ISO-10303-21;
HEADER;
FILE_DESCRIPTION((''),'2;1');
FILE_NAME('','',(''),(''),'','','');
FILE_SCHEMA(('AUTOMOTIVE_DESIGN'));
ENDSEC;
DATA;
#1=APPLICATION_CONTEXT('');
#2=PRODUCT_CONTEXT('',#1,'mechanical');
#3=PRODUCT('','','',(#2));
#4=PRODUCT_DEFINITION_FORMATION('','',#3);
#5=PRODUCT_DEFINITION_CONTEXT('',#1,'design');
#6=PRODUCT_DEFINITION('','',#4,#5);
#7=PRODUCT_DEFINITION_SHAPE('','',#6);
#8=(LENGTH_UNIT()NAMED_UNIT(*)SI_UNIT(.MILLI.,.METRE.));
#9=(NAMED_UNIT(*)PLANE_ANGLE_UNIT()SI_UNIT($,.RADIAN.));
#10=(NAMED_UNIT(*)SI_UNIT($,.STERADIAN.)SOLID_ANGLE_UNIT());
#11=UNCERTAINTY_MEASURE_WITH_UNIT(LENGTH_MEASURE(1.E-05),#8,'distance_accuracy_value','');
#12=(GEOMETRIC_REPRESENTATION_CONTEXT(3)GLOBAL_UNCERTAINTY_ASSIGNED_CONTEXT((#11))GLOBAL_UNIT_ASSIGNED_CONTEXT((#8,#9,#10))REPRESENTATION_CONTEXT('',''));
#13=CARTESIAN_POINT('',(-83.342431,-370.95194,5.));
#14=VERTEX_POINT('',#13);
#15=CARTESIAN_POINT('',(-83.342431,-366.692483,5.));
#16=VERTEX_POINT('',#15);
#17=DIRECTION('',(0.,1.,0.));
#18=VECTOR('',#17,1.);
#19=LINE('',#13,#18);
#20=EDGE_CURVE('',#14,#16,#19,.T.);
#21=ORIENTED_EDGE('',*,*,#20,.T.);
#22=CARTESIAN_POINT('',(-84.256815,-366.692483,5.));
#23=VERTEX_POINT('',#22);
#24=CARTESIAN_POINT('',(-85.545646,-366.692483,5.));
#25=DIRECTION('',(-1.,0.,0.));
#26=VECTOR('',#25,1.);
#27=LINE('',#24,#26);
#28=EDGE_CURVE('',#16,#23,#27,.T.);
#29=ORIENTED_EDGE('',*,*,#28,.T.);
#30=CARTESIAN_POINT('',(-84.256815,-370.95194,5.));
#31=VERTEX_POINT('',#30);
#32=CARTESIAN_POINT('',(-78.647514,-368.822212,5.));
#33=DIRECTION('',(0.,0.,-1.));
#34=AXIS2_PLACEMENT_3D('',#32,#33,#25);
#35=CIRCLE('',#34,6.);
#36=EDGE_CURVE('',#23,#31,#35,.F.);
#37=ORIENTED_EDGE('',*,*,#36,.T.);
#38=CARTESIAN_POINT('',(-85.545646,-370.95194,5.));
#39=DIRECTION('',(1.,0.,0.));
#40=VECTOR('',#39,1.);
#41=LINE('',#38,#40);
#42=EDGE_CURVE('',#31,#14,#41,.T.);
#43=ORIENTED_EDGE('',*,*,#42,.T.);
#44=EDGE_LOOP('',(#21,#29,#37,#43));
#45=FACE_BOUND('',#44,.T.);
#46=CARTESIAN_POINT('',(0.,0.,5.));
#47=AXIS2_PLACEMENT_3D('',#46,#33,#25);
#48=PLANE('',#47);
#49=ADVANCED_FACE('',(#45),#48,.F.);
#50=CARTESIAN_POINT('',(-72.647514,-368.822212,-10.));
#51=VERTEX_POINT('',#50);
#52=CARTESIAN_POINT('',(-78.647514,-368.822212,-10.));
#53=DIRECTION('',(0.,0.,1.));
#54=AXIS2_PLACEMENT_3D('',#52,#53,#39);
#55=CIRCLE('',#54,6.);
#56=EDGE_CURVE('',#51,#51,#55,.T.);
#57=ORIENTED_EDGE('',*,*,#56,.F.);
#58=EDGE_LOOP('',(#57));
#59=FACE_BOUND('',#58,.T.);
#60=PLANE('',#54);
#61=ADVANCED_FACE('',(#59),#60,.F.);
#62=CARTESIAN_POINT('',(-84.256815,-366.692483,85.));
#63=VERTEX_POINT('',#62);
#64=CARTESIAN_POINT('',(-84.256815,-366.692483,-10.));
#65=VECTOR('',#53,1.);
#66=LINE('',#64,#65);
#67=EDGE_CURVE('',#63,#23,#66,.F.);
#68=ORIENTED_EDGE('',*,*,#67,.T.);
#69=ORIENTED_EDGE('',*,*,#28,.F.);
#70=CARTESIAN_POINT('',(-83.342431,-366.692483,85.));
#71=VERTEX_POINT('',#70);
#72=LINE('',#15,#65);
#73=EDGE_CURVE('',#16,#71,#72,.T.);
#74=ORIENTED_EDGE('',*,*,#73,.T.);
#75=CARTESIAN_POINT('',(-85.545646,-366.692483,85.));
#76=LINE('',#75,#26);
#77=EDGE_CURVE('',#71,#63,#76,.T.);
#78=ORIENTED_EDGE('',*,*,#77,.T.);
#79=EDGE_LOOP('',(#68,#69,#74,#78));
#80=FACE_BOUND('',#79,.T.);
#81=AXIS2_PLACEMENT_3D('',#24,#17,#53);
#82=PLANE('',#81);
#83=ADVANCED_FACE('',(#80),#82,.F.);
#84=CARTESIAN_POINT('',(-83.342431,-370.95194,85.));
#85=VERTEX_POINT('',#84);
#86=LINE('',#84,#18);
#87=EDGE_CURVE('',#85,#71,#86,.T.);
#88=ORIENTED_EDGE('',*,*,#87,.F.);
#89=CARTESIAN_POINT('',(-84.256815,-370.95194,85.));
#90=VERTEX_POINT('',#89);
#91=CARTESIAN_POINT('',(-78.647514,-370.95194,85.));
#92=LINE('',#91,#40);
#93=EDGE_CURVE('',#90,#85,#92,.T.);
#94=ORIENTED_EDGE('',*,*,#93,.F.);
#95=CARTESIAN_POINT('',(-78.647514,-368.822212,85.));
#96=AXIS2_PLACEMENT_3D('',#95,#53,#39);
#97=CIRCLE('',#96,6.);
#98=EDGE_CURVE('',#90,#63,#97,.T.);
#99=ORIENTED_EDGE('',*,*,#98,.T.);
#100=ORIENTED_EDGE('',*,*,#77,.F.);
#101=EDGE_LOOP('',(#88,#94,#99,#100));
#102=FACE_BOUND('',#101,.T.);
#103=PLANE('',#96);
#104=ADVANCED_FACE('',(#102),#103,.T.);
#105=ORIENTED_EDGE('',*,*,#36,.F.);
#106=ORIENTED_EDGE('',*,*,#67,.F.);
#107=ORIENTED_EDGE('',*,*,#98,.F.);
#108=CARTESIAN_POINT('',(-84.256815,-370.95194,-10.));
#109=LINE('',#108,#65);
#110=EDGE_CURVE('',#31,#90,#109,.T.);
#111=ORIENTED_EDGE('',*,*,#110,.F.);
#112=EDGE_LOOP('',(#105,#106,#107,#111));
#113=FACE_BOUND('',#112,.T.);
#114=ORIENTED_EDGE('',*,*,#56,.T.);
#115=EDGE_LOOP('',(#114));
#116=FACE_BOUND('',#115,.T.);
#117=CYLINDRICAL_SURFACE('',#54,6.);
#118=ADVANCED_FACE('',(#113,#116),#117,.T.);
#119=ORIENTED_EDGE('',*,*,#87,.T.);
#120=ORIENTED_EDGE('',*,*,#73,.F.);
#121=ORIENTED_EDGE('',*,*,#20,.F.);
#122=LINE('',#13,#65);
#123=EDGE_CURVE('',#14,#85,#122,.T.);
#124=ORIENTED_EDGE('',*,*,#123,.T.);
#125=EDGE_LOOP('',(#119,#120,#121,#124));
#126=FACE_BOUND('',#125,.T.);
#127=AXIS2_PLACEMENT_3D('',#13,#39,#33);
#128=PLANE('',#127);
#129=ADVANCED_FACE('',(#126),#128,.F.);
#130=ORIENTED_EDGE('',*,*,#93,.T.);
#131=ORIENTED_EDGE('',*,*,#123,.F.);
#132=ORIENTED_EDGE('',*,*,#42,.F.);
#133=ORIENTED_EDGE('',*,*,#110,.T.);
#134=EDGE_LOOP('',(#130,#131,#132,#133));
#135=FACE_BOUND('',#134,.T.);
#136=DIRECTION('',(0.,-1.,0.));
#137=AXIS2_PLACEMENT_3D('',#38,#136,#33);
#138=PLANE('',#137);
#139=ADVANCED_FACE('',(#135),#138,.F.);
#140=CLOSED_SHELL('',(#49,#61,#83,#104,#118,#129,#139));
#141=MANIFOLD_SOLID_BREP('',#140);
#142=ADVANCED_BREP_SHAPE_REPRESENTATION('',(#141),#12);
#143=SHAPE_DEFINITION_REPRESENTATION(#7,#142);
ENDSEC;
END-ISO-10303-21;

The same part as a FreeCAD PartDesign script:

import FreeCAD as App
import Part
import Sketcher


def add_polygon(sketch, points):
    """Adds a closed chain of lines whose ends are joined by coincident constraints."""
    first, n = sketch.GeometryCount, len(points)
    for a, b in zip(points, points[1:] + points[:1]):
        sketch.addGeometry(Part.LineSegment(App.Vector(*a, 0), App.Vector(*b, 0)), False)
    for i in range(n):
        sketch.addConstraint(Sketcher.Constraint("Coincident", first + i, 2, first + (i + 1) % n, 1))

doc = App.newDocument("Part")
body = doc.addObject("PartDesign::Body", "Body")

# Sketch on XY plane
sketch1 = body.newObject("Sketcher::SketchObject", "Sketch")
sketch1.AttachmentSupport = (doc.getObject("XY_Plane"), [""])
sketch1.MapMode = "FlatFace"
sketch1.addGeometry(Part.Circle(App.Vector(-78.647514, -368.822212, 0), App.Vector(0, 0, 1), 6), False)
sketch1.addConstraint([
    Sketcher.Constraint("Diameter", 0, 12.0),
    Sketcher.Constraint("DistanceY", 0, 3, -1, 1, 368.822212),
    Sketcher.Constraint("DistanceX", 0, 3, -1, 1, 78.647514),
])
pad1 = body.newObject("PartDesign::Pad", "Pad")
pad1.Profile = sketch1
pad1.Type = "TwoLengths"
pad1.Length = 85
pad1.Length2 = 10

# Sketch on XY plane
sketch2 = body.newObject("Sketcher::SketchObject", "Sketch001")
sketch2.AttachmentSupport = (doc.getObject("XY_Plane"), [""])
sketch2.MapMode = "FlatFace"
sketch2.AttachmentOffset = App.Placement(App.Vector(0, 0, 85), App.Rotation())
add_polygon(sketch2, [(-85.545646, -366.692483), (-85.545646, -370.95194), (-83.342431, -370.95194), (-83.342431, -366.692483)])  # lines 0-3
sketch2.addConstraint([
    Sketcher.Constraint("Vertical", 0),
    Sketcher.Constraint("Horizontal", 1),
    Sketcher.Constraint("Vertical", 2),
    Sketcher.Constraint("Horizontal", 3),
    Sketcher.Constraint("DistanceX", 1, 1, 1, 2, 2.203214),
    Sketcher.Constraint("DistanceY", 0, 2, 0, 1, 4.259457),
    Sketcher.Constraint("DistanceY", 0, 2, -1, 1, 370.95194),
    Sketcher.Constraint("DistanceX", 1, 2, -1, 1, 83.342431),
])
pocket1 = body.newObject("PartDesign::Pocket", "Pocket")
pocket1.Profile = sketch2
pocket1.Length = 80

doc.recompute()
